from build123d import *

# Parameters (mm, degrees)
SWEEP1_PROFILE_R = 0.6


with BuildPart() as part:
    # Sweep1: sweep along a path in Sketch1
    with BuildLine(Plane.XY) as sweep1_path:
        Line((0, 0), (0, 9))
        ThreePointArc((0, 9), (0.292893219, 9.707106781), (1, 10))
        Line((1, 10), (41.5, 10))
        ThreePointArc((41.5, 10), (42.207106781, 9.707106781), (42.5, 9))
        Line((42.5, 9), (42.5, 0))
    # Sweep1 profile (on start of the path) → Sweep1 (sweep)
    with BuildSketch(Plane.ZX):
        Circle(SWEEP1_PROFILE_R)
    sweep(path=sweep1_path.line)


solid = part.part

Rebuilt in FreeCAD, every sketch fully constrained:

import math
import FreeCAD as App
import Part
import Sketcher
Q = App.Units.Quantity

doc = App.newDocument("Part")
body = doc.addObject("PartDesign::Body", "Body")

# Sketch on XZ plane
sketch1 = body.newObject("Sketcher::SketchObject", "Sketch")
sketch1.AttachmentSupport = (doc.getObject("XZ_Plane"), [""])
sketch1.MapMode = "FlatFace"
sketch1.addGeometry(Part.Circle(App.Vector(0, 0, 0), App.Vector(0, 0, 1), 0.6), False)
sketch1.addConstraint([
    Sketcher.Constraint("Coincident", 0, 3, -1, 1),
    Sketcher.Constraint("Diameter", 0, Q("1.2 mm")),
])

# Sketch on XY plane
sketch2 = body.newObject("Sketcher::SketchObject", "Sketch001")
sketch2.AttachmentSupport = (doc.getObject("XY_Plane"), [""])
sketch2.MapMode = "FlatFace"
sketch2.addGeometry([
    Part.LineSegment(App.Vector(0, 0, 0), App.Vector(0, 9, 0)),  # 0
    Part.ArcOfCircle(Part.Circle(App.Vector(1, 9, 0), App.Vector(0, 0, 1), 1), math.radians(90), math.radians(180)),  # 1
    Part.LineSegment(App.Vector(1, 10, 0), App.Vector(41.5, 10, 0)),  # 2
    Part.ArcOfCircle(Part.Circle(App.Vector(41.5, 9, 0), App.Vector(0, 0, 1), 1), math.radians(0), math.radians(90)),  # 3
    Part.LineSegment(App.Vector(42.5, 9, 0), App.Vector(42.5, 0, 0)),  # 4
], False)
sketch2.addConstraint([
    Sketcher.Constraint("Tangent", 0, 2, 1, 2),
    Sketcher.Constraint("Tangent", 1, 1, 2, 1),
    Sketcher.Constraint("Tangent", 2, 2, 3, 2),
    Sketcher.Constraint("Tangent", 3, 1, 4, 1),
    Sketcher.Constraint("Vertical", 0),
    Sketcher.Constraint("Horizontal", 2),
    Sketcher.Constraint("Vertical", 4),
    Sketcher.Constraint("Coincident", 0, 1, -1, 1),
    Sketcher.Constraint("Equal", 1, 3),
    Sketcher.Constraint("PointOnObject", 4, 2, -1),
    Sketcher.Constraint("Radius", 1, Q("1 mm")),
    Sketcher.Constraint("DistanceY", 0, 1, 0, 2, Q("9 mm")),
    Sketcher.Constraint("DistanceX", 2, 1, 2, 2, Q("40.5 mm")),
])
doc.recompute()

additivepipe = body.newObject("PartDesign::AdditivePipe", "AdditivePipe")
additivepipe.Profile = sketch1
additivepipe.Spine = (sketch2, ["Edge1", "Edge2", "Edge3", "Edge4", "Edge5"])

doc.recompute()
